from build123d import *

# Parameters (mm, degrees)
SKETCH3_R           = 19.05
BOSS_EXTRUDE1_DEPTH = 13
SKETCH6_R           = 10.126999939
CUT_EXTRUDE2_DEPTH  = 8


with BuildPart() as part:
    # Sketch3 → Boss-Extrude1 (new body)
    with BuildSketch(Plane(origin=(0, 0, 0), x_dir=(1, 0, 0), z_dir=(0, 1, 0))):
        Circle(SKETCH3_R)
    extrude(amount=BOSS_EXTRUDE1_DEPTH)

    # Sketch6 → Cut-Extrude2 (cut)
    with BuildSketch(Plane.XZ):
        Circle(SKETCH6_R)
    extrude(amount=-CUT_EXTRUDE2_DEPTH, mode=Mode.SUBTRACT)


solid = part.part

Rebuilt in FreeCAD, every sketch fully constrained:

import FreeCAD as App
import Part
import Sketcher

V = App.Vector
Q = App.Units.Quantity

doc = App.newDocument("Part")
params = doc.addObject("Spreadsheet::Sheet", "Params")
for row, (alias, value) in enumerate([
    ("sketch1_diameter", "38.1 mm"),
    ("pad1_length", "13 mm"),
    ("pocket1_length", "8 mm"),
], start=1):
    params.set(f"A{row}", alias)
    params.set(f"B{row}", "=" + value)
    params.setAlias(f"B{row}", alias)

body = doc.addObject("PartDesign::Body", "Body")

sketch1 = body.newObject("Sketcher::SketchObject", "Sketch")
sketch1.AttachmentSupport = (doc.getObject("XZ_Plane"), [""])
sketch1.MapMode = "FlatFace"
sketch1.addGeometry(Part.Circle(V(0, 0, 0), V(0, 0, 1), 19), False)
sketch1.addConstraint(Sketcher.Constraint("Coincident", 0, 3, -1, 1))
sketch1.addConstraint(Sketcher.Constraint("Diameter", 0, Q("38.1 mm")))
sketch1.setExpression("Constraints[1]", "Params.sketch1_diameter")
pad1 = body.newObject("PartDesign::Pad", "Pad")
pad1.Profile = sketch1
pad1.setExpression("Length", "Params.pad1_length")
pad1.Reversed = True

sketch2 = body.newObject("Sketcher::SketchObject", "Sketch001")
sketch2.AttachmentSupport = (doc.getObject("XZ_Plane"), [""])
sketch2.MapMode = "FlatFace"
sketch2.addGeometry(Part.Circle(V(0, 0, 0), V(0, 0, 1), 10), False)
sketch2.addConstraint(Sketcher.Constraint("Coincident", 0, 3, -1, 1))
sketch2.addConstraint(Sketcher.Constraint("Diameter", 0, Q("20.254 mm")))
pocket1 = body.newObject("PartDesign::Pocket", "Pocket")
pocket1.Profile = sketch2
pocket1.setExpression("Length", "Params.pocket1_length")

doc.recompute()
